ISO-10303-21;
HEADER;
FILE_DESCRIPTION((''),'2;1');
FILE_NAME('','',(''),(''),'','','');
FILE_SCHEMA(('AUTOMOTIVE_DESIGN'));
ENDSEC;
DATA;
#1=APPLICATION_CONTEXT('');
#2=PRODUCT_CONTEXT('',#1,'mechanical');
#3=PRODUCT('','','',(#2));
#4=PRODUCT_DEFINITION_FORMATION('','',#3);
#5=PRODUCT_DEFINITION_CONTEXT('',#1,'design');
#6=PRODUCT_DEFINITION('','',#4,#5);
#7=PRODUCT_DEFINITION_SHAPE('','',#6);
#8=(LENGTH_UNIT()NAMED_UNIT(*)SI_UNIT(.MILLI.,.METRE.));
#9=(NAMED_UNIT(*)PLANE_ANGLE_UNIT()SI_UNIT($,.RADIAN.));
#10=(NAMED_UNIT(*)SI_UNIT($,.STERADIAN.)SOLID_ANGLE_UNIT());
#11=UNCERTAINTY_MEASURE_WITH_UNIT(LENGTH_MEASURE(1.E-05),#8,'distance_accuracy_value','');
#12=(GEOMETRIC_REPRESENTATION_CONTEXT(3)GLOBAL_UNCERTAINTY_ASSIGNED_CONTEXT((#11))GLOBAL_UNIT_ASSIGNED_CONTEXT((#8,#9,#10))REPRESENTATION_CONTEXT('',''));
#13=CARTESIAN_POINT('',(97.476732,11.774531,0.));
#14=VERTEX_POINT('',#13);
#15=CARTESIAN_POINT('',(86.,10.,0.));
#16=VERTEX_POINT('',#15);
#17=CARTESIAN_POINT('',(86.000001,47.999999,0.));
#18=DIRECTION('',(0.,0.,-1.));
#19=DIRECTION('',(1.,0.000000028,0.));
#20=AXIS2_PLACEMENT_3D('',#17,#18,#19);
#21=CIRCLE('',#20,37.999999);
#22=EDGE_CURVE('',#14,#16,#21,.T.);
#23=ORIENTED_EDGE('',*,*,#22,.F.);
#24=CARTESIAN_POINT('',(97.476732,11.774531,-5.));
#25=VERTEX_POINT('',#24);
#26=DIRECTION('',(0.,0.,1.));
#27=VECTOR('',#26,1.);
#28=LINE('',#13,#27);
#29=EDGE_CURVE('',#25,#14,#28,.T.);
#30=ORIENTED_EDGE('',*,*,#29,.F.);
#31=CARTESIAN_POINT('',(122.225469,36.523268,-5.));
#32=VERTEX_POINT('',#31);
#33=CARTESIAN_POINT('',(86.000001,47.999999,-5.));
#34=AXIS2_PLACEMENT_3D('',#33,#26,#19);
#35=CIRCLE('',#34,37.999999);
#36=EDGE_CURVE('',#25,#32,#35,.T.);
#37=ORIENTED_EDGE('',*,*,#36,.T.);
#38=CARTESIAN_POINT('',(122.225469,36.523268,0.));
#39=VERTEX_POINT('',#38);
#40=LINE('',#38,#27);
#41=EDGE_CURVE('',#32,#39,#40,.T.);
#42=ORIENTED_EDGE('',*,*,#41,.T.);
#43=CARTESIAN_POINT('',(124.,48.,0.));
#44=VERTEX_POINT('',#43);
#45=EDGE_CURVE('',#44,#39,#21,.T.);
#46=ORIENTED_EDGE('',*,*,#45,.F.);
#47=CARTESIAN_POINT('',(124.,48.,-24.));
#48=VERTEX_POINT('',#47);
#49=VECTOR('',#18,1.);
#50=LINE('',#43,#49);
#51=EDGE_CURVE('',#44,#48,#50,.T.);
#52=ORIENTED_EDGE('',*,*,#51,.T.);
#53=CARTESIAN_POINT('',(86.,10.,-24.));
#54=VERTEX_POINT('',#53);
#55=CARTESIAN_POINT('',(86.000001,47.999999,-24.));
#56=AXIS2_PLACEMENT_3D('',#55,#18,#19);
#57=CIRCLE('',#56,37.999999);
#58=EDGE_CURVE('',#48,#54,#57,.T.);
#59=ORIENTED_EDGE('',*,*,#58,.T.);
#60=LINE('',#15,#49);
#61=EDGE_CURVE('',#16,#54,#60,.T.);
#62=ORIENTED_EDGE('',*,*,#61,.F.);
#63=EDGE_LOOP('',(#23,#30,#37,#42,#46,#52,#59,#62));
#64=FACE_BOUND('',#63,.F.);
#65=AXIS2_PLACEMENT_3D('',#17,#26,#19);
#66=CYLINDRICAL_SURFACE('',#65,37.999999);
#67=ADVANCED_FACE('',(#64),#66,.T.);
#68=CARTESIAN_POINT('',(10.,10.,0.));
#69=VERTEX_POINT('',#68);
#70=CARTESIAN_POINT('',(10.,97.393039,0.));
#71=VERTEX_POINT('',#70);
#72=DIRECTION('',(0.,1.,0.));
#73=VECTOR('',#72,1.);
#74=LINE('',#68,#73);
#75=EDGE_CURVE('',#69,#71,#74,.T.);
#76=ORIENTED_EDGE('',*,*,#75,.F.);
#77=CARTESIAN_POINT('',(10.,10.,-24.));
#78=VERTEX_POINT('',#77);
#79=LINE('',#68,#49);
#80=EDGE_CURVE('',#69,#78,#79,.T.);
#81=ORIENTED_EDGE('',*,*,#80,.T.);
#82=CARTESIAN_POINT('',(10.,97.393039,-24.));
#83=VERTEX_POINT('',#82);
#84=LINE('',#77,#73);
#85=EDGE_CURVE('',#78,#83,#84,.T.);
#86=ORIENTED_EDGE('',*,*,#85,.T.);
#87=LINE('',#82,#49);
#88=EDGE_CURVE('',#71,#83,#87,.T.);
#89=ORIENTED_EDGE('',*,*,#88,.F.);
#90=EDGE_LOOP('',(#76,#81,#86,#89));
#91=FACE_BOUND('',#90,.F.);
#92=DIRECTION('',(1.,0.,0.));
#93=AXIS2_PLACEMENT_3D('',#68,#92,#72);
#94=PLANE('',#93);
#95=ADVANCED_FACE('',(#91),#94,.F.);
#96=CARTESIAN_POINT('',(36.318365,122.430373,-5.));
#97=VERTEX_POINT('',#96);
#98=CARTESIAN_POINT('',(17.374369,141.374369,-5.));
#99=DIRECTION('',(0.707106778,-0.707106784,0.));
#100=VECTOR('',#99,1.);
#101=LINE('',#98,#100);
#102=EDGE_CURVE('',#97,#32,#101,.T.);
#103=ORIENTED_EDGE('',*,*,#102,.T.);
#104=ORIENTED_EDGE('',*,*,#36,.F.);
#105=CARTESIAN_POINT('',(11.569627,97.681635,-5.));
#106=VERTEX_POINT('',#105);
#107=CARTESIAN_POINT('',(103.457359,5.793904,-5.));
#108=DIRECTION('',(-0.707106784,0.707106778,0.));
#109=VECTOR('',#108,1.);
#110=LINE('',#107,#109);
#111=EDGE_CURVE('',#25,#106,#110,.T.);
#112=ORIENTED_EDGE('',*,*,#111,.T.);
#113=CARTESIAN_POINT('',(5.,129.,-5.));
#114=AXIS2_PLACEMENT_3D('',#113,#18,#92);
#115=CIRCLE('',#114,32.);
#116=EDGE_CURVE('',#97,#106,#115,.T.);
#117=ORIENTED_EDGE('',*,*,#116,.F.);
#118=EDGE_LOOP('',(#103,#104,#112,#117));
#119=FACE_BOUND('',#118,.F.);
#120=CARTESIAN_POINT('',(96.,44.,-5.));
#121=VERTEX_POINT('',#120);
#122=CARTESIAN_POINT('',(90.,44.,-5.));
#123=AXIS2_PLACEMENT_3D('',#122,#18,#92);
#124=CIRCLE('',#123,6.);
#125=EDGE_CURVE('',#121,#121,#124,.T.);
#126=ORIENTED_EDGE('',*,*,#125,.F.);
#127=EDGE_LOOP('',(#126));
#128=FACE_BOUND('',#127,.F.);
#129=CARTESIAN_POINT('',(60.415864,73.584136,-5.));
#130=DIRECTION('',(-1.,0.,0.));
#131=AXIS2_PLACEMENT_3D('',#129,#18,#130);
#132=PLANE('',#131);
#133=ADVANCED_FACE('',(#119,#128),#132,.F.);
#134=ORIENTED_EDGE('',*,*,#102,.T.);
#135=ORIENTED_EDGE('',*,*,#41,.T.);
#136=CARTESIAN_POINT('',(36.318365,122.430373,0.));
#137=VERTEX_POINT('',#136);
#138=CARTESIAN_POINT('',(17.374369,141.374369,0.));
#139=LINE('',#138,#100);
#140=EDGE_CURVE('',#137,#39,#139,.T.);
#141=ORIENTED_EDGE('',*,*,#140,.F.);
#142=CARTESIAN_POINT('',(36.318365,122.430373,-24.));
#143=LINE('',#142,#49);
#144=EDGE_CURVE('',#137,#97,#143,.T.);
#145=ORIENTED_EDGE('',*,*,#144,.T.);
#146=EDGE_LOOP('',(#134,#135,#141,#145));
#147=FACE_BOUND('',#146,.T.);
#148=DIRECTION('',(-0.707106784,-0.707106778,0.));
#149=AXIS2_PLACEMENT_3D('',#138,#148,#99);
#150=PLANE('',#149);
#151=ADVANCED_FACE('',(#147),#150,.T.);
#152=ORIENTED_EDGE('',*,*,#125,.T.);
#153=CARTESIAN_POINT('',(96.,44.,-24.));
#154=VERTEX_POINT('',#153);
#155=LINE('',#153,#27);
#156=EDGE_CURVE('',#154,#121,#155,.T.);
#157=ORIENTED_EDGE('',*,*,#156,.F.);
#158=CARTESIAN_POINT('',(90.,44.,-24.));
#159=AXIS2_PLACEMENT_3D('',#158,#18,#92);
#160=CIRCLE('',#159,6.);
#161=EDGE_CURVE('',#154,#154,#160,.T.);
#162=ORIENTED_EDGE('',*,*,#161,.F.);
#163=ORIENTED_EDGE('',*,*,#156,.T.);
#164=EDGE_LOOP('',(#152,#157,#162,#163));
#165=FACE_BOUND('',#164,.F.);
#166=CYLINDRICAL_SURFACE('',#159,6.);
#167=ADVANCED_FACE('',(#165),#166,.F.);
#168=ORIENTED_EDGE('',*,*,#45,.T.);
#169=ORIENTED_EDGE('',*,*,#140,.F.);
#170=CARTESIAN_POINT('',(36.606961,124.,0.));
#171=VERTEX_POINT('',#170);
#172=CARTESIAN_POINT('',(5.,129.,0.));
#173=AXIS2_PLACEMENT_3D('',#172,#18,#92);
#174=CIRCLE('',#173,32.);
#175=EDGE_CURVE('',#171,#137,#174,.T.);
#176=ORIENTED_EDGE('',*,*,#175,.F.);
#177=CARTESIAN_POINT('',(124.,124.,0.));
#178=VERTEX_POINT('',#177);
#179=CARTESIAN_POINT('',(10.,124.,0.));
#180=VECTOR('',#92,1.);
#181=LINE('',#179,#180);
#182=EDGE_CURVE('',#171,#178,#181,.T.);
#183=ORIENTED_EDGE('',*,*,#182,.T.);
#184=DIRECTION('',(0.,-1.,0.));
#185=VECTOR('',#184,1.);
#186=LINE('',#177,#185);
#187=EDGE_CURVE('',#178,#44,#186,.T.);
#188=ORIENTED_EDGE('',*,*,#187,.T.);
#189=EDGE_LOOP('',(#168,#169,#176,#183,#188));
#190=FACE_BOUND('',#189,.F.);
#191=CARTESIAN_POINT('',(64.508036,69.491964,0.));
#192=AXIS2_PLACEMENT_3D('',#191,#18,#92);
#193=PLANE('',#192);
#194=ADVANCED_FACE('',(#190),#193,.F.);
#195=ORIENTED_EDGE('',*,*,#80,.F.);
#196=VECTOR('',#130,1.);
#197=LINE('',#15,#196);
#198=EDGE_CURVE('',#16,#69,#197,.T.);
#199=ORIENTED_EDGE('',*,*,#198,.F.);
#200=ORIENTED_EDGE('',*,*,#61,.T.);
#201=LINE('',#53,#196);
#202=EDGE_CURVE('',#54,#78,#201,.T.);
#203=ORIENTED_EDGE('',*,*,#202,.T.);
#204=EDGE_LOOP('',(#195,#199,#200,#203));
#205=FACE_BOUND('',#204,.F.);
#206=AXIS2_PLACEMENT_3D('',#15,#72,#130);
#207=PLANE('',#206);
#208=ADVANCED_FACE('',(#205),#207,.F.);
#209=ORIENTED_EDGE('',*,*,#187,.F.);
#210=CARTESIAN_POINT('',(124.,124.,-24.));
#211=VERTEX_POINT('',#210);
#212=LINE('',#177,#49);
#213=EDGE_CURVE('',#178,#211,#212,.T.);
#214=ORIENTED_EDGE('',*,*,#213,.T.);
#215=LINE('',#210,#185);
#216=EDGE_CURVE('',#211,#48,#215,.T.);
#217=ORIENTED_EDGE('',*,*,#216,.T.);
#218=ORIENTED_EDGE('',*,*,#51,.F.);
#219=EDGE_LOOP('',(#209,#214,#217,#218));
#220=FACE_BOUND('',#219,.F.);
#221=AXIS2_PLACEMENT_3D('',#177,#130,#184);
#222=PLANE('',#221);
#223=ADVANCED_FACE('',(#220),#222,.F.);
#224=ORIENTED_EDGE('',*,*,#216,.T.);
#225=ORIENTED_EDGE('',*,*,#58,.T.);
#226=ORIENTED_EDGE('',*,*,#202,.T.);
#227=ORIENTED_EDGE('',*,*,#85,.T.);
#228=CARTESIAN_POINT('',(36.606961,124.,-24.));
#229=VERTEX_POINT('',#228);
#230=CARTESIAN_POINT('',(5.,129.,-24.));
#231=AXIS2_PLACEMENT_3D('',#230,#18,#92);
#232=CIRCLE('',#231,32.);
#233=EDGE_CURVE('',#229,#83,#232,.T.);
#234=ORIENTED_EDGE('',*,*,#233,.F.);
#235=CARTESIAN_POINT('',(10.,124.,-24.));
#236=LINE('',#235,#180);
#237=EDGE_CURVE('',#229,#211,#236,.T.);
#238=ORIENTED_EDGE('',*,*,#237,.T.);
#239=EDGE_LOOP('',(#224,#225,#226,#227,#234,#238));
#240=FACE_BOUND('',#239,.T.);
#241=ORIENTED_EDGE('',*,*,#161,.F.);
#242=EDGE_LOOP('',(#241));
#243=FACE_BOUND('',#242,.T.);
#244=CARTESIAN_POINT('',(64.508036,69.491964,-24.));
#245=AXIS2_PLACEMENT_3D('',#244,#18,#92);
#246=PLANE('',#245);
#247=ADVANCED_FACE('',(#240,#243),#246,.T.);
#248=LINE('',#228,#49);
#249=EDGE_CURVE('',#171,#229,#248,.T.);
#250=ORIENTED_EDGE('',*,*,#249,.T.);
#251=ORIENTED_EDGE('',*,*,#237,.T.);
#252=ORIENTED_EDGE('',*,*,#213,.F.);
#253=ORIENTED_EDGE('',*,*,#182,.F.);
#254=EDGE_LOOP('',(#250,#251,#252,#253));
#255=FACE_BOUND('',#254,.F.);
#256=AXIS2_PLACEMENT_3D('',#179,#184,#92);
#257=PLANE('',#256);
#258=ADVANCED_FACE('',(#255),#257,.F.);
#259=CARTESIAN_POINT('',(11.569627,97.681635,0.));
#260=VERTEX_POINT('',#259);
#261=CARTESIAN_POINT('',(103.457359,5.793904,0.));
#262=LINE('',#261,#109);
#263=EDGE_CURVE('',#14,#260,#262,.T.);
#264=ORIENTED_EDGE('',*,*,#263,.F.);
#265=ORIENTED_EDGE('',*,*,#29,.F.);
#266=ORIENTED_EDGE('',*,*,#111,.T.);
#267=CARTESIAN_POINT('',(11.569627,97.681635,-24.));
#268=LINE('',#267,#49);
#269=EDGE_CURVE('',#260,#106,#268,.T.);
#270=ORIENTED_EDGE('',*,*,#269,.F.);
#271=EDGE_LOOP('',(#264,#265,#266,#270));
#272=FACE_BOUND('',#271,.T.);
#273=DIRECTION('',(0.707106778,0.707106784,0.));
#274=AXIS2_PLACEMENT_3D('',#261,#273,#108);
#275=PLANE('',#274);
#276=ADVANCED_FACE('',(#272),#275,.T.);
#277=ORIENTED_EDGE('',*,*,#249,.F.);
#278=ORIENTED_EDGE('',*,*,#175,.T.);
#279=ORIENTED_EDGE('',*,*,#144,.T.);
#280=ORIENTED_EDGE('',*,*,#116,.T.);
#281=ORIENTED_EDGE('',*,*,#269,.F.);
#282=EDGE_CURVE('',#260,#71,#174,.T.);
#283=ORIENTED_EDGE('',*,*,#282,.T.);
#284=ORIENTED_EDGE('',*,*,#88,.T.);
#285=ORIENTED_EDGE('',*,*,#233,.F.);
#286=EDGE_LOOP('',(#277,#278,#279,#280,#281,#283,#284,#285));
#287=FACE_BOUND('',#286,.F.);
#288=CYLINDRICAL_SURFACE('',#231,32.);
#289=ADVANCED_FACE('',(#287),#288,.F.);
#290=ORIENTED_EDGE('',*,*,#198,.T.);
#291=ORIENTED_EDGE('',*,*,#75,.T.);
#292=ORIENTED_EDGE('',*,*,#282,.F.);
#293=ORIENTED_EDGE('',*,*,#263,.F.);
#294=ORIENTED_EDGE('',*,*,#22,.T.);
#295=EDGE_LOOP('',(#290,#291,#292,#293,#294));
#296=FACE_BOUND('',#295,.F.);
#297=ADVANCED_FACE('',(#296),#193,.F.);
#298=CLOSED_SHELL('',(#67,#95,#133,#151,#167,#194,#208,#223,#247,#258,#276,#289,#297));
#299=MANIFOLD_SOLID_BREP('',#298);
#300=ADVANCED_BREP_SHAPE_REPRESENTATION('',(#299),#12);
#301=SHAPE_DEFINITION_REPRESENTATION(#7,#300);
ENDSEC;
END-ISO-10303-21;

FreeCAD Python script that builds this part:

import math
import FreeCAD as App
import Part
import Sketcher

V = App.Vector
Q = App.Units.Quantity

doc = App.newDocument("Part")
body = doc.addObject("PartDesign::Body", "Body")

sketch1 = body.newObject("Sketcher::SketchObject", "Sketch")
sketch1.AttachmentSupport = (doc.getObject("XY_Plane"), [""])
sketch1.MapMode = "FlatFace"
sketch1.addGeometry(Part.LineSegment(V(5, 5, 0), V(119, 5, 0)), False)
sketch1.addGeometry(Part.LineSegment(V(119, 5, 0), V(119, 81, 0)), False)
sketch1.addGeometry(Part.ArcOfCircle(Part.Circle(V(81.000001, 81.000001, 0), V(0, 0, 1), 37.999999), math.radians(-0.000002), math.radians(90.000002)), False)
sketch1.addGeometry(Part.LineSegment(V(81, 119, 0), V(5, 119, 0)), False)
sketch1.addGeometry(Part.LineSegment(V(5, 119, 0), V(5, 5, 0)), False)
sketch1.addConstraint(Sketcher.Constraint("Coincident", 0, 2, 1, 1))
sketch1.addConstraint(Sketcher.Constraint("Tangent", 1, 2, 2, 1))
sketch1.addConstraint(Sketcher.Constraint("Tangent", 2, 2, 3, 1))
sketch1.addConstraint(Sketcher.Constraint("Coincident", 3, 2, 4, 1))
sketch1.addConstraint(Sketcher.Constraint("Coincident", 4, 2, 0, 1))
sketch1.addConstraint(Sketcher.Constraint("Horizontal", 0))
sketch1.addConstraint(Sketcher.Constraint("Vertical", 1))
sketch1.addConstraint(Sketcher.Constraint("Horizontal", 3))
sketch1.addConstraint(Sketcher.Constraint("Vertical", 4))
sketch1.addConstraint(Sketcher.Constraint("Equal", 3, 1))
sketch1.addConstraint(Sketcher.Constraint("Radius", 2, 37.999999))
sketch1.addConstraint(Sketcher.Constraint("DistanceX", 0, 1, 0, 2, 114.0))
sketch1.addConstraint(Sketcher.Constraint("DistanceX", -1, 1, 2, 3, 81.000001))
sketch1.addConstraint(Sketcher.Constraint("DistanceY", -1, 1, 2, 3, 81.000001))
pad1 = body.newObject("PartDesign::Pad", "Pad")
pad1.Profile = sketch1
pad1.Length = 24

sketch2 = body.newObject("Sketcher::SketchObject", "Sketch001")
sketch2.AttachmentSupport = (doc.getObject("XY_Plane"), [""])
sketch2.MapMode = "FlatFace"
sketch2.addGeometry(Part.LineSegment(V(123.206096, 98.457359, 0), V(12.374369, -12.374369, 0)), False)
sketch2.addGeometry(Part.LineSegment(V(12.374369, -12.374369, 0), V(-12.374369, 12.374369, 0)), False)
sketch2.addGeometry(Part.LineSegment(V(-12.374369, 12.374369, 0), V(98.457359, 123.206096, 0)), False)
sketch2.addGeometry(Part.LineSegment(V(98.457359, 123.206096, 0), V(123.206096, 98.457359, 0)), False)
sketch2.addConstraint(Sketcher.Constraint("Coincident", 0, 2, 1, 1))
sketch2.addConstraint(Sketcher.Constraint("Coincident", 1, 2, 2, 1))
sketch2.addConstraint(Sketcher.Constraint("Coincident", 2, 2, 3, 1))
sketch2.addConstraint(Sketcher.Constraint("Coincident", 3, 2, 0, 1))
sketch2.addConstraint(Sketcher.Constraint("Symmetric", 0, 2, 1, 2, -1, 1))
sketch2.addConstraint(Sketcher.Constraint("Perpendicular", 0, 1))
sketch2.addConstraint(Sketcher.Constraint("Perpendicular", 1, 2))
sketch2.addConstraint(Sketcher.Constraint("Perpendicular", 2, 3))
sketch2.addConstraint(Sketcher.Constraint("Angle", 0, Q("-135 deg")))
sketch2.addConstraint(Sketcher.Constraint("Distance", 1, 35.000001))
sketch2.addConstraint(Sketcher.Constraint("DistanceX", -1, 1, 2, 2, 98.457359))
pocket1 = body.newObject("PartDesign::Pocket", "Pocket")
pocket1.Profile = sketch2
pocket1.Length = 5
pocket1.Reversed = True

sketch3 = body.newObject("Sketcher::SketchObject", "Sketch002")
sketch3.AttachmentSupport = (doc.getObject("XY_Plane"), [""])
sketch3.MapMode = "FlatFace"
sketch3.AttachmentOffset = App.Placement(V(0, 0, 24), App.Rotation())
sketch3.addGeometry(Part.Circle(V(0, 0, 0), V(0, 0, 1), 32), False)
sketch3.addGeometry(Part.Circle(V(85, 85, 0), V(0, 0, 1), 6), False)
sketch3.addConstraint(Sketcher.Constraint("Coincident", 0, 3, -1, 1))
sketch3.addConstraint(Sketcher.Constraint("Diameter", 0, 64.0))
sketch3.addConstraint(Sketcher.Constraint("Diameter", 1, 12.0))
sketch3.addConstraint(Sketcher.Constraint("DistanceX", -1, 1, 1, 3, 85.0))
sketch3.addConstraint(Sketcher.Constraint("DistanceY", -1, 1, 1, 3, 85.0))
pocket2 = body.newObject("PartDesign::Pocket", "Pocket001")
pocket2.Profile = sketch3
pocket2.Length = 24
body2 = doc.addObject("PartDesign::Body", "Body001")
doc.recompute()

body.Placement = App.Placement(V(0, 0, 0), App.Rotation(V(1, 0, 0), 180))
boolean = body2.newObject("PartDesign::Boolean", "Boolean")
boolean.Type = "Fuse"
boolean.addObjects([body])
body3 = doc.addObject("PartDesign::Body", "Body002")
doc.recompute()

body2.Placement = App.Placement(V(5, 129, 0), App.Rotation(V(0, 0, 1), 0))
boolean2 = body3.newObject("PartDesign::Boolean", "Boolean001")
boolean2.Type = "Fuse"
boolean2.addObjects([body2])

doc.recompute()
